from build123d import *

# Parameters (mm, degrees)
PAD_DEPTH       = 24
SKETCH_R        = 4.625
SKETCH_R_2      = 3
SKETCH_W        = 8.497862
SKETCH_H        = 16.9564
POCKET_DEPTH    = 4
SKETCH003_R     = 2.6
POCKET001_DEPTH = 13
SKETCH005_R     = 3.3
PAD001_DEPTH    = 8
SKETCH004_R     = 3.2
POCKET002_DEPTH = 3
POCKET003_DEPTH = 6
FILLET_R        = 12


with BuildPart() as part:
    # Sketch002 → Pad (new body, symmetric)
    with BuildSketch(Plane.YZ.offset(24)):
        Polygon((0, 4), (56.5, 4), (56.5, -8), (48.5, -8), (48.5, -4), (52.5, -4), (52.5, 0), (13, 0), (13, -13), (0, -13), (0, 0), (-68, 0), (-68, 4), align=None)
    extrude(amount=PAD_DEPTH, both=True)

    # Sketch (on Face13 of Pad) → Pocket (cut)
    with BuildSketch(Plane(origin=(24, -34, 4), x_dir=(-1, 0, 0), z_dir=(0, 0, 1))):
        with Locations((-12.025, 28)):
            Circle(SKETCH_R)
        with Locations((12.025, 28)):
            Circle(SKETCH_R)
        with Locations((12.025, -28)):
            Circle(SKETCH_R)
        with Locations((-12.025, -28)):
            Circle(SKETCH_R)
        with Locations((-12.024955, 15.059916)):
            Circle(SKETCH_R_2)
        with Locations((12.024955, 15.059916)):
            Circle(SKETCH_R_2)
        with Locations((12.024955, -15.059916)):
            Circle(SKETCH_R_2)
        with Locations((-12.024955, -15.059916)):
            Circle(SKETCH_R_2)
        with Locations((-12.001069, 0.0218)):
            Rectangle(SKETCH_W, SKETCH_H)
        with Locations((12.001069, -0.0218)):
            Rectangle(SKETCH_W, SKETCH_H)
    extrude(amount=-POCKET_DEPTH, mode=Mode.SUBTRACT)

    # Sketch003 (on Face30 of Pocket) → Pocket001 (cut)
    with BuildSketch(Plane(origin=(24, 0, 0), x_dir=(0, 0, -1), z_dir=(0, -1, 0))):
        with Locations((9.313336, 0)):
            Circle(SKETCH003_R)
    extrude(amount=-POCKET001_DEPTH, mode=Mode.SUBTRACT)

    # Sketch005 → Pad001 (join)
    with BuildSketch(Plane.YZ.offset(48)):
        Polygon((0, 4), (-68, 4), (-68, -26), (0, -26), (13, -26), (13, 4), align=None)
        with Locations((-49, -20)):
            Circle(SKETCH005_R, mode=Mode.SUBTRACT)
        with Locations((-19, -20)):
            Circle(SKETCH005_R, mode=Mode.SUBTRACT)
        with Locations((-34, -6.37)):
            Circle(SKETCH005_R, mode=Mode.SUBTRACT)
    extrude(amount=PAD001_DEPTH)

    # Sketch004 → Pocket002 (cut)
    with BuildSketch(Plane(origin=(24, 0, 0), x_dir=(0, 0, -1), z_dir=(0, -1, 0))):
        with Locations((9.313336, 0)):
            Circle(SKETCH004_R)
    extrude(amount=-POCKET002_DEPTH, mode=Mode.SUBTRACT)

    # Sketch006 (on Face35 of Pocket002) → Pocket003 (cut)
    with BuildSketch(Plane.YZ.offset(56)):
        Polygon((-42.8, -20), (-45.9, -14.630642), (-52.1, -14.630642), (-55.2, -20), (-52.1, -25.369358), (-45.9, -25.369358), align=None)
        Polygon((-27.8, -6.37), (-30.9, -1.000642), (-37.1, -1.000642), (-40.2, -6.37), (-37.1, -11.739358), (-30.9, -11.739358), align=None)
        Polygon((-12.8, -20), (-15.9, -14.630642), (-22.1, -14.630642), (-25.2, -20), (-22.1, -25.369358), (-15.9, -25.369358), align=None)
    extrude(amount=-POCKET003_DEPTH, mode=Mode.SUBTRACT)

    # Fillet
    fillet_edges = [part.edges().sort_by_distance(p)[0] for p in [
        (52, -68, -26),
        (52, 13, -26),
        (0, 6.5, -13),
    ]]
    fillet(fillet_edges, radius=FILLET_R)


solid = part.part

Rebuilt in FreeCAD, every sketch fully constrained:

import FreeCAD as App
import Part
import Sketcher
from FreeCAD import Vector
Q = App.Units.Quantity


def edges_at(feature, points):
    """Names of the edges that pass closest to the given points."""
    edges = feature.Shape.Edges
    near = lambda p: min(range(len(edges)), key=lambda i: edges[i].distToShape(Part.Vertex(*p))[0])
    return sorted({f"Edge{near(p) + 1}" for p in points})

doc = App.newDocument("Part")
body = doc.addObject("PartDesign::Body", "Body")

# Sketch on YZ plane
sketch1 = body.newObject("Sketcher::SketchObject", "Sketch")
sketch1.AttachmentSupport = (doc.getObject("YZ_Plane"), [""])
sketch1.MapMode = "FlatFace"
sketch1.AttachmentOffset = App.Placement(Vector(0, 0, 24), App.Rotation())
sketch1.addGeometry(Part.LineSegment(Vector(56.5, 4, 0), Vector(-68, 4, 0)), False)
sketch1.addGeometry(Part.LineSegment(Vector(-68, 4, 0), Vector(-68, 0, 0)), False)
sketch1.addGeometry(Part.LineSegment(Vector(-68, 0, 0), Vector(0, 0, 0)), False)
sketch1.addGeometry(Part.LineSegment(Vector(0, 0, 0), Vector(0, -13, 0)), False)
sketch1.addGeometry(Part.LineSegment(Vector(0, -13, 0), Vector(13, -13, 0)), False)
sketch1.addGeometry(Part.LineSegment(Vector(13, -13, 0), Vector(13, 0, 0)), False)
sketch1.addGeometry(Part.LineSegment(Vector(13, 0, 0), Vector(52.5, 0, 0)), False)
sketch1.addGeometry(Part.LineSegment(Vector(52.5, 0, 0), Vector(52.5, -4, 0)), False)
sketch1.addGeometry(Part.LineSegment(Vector(52.5, -4, 0), Vector(48.5, -4, 0)), False)
sketch1.addGeometry(Part.LineSegment(Vector(48.5, -4, 0), Vector(48.5, -8, 0)), False)
sketch1.addGeometry(Part.LineSegment(Vector(48.5, -8, 0), Vector(56.5, -8, 0)), False)
sketch1.addGeometry(Part.LineSegment(Vector(56.5, -8, 0), Vector(56.5, 4, 0)), False)
sketch1.addConstraint(Sketcher.Constraint("Coincident", 0, 2, 1, 1))
sketch1.addConstraint(Sketcher.Constraint("Coincident", 1, 2, 2, 1))
sketch1.addConstraint(Sketcher.Constraint("Coincident", 2, 2, 3, 1))
sketch1.addConstraint(Sketcher.Constraint("Coincident", 3, 2, 4, 1))
sketch1.addConstraint(Sketcher.Constraint("Coincident", 4, 2, 5, 1))
sketch1.addConstraint(Sketcher.Constraint("Coincident", 5, 2, 6, 1))
sketch1.addConstraint(Sketcher.Constraint("Coincident", 6, 2, 7, 1))
sketch1.addConstraint(Sketcher.Constraint("Coincident", 7, 2, 8, 1))
sketch1.addConstraint(Sketcher.Constraint("Coincident", 8, 2, 9, 1))
sketch1.addConstraint(Sketcher.Constraint("Coincident", 9, 2, 10, 1))
sketch1.addConstraint(Sketcher.Constraint("Coincident", 10, 2, 11, 1))
sketch1.addConstraint(Sketcher.Constraint("Coincident", 11, 2, 0, 1))
sketch1.addConstraint(Sketcher.Constraint("Horizontal", 0))
sketch1.addConstraint(Sketcher.Constraint("Vertical", 1))
sketch1.addConstraint(Sketcher.Constraint("Horizontal", 2))
sketch1.addConstraint(Sketcher.Constraint("Vertical", 3))
sketch1.addConstraint(Sketcher.Constraint("Horizontal", 4))
sketch1.addConstraint(Sketcher.Constraint("Vertical", 5))
sketch1.addConstraint(Sketcher.Constraint("Horizontal", 6))
sketch1.addConstraint(Sketcher.Constraint("Vertical", 7))
sketch1.addConstraint(Sketcher.Constraint("Horizontal", 8))
sketch1.addConstraint(Sketcher.Constraint("Vertical", 9))
sketch1.addConstraint(Sketcher.Constraint("Horizontal", 10))
sketch1.addConstraint(Sketcher.Constraint("Vertical", 11))
sketch1.addConstraint(Sketcher.Constraint("Coincident", 2, 2, -1, 1))
sketch1.addConstraint(Sketcher.Constraint("PointOnObject", 5, 2, -1))
sketch1.addConstraint(Sketcher.Constraint("Equal", 8, 1))
sketch1.addConstraint(Sketcher.Constraint("Equal", 4, 3))
sketch1.addConstraint(Sketcher.Constraint("Equal", 1, 7))
sketch1.addConstraint(Sketcher.Constraint("Equal", 7, 9))
sketch1.addConstraint(Sketcher.Constraint("DistanceX", 2, 1, 2, 2, Q("68 mm")))
sketch1.addConstraint(Sketcher.Constraint("DistanceX", 4, 1, 4, 2, Q("13 mm")))
sketch1.addConstraint(Sketcher.Constraint("DistanceX", 8, 2, 8, 1, Q("4 mm")))
sketch1.addConstraint(Sketcher.Constraint("DistanceX", 10, 1, 10, 2, Q("8 mm")))
sketch1.addConstraint(Sketcher.Constraint("DistanceX", 0, 2, 0, 1, Q("124.5 mm")))
pad1 = body.newObject("PartDesign::Pad", "Pad")
pad1.Profile = sketch1
pad1.Length = 48
pad1.Midplane = True

# Sketch on XY plane
sketch2 = body.newObject("Sketcher::SketchObject", "Sketch001")
sketch2.AttachmentSupport = (doc.getObject("XY_Plane"), [""])
sketch2.MapMode = "FlatFace"
sketch2.AttachmentOffset = App.Placement(Vector(0, 0, 4), App.Rotation())
sketch2.addGeometry(Part.Circle(Vector(36, -62, 0), Vector(0, 0, 1), 4.6), False)
sketch2.addGeometry(Part.Circle(Vector(12, -62, 0), Vector(0, 0, 1), 4.6), False)
sketch2.addGeometry(Part.Circle(Vector(12, -6, 0), Vector(0, 0, 1), 4.6), False)
sketch2.addGeometry(Part.Circle(Vector(36, -6, 0), Vector(0, 0, 1), 4.6), False)
sketch2.addGeometry(Part.Circle(Vector(36, -49.1, 0), Vector(0, 0, 1), 3), False)
sketch2.addGeometry(Part.Circle(Vector(12, -49.1, 0), Vector(0, 0, 1), 3), False)
sketch2.addGeometry(Part.Circle(Vector(12, -18.9, 0), Vector(0, 0, 1), 3), False)
sketch2.addGeometry(Part.Circle(Vector(36, -18.9, 0), Vector(0, 0, 1), 3), False)
sketch2.addGeometry(Part.LineSegment(Vector(40.2, -42.5, 0), Vector(40.2, -25.5, 0)), False)
sketch2.addGeometry(Part.LineSegment(Vector(40.2, -25.5, 0), Vector(31.8, -25.5, 0)), False)
sketch2.addGeometry(Part.LineSegment(Vector(31.8, -25.5, 0), Vector(31.8, -42.5, 0)), False)
sketch2.addGeometry(Part.LineSegment(Vector(31.8, -42.5, 0), Vector(40.2, -42.5, 0)), False)
sketch2.addGeometry(Part.LineSegment(Vector(16.2, -42.5, 0), Vector(16.2, -25.5, 0)), False)
sketch2.addGeometry(Part.LineSegment(Vector(16.2, -25.5, 0), Vector(7.8, -25.5, 0)), False)
sketch2.addGeometry(Part.LineSegment(Vector(7.8, -25.5, 0), Vector(7.8, -42.5, 0)), False)
sketch2.addGeometry(Part.LineSegment(Vector(7.8, -42.5, 0), Vector(16.2, -42.5, 0)), False)
sketch2.addConstraint(Sketcher.Constraint("Coincident", 8, 2, 9, 1))
sketch2.addConstraint(Sketcher.Constraint("Coincident", 9, 2, 10, 1))
sketch2.addConstraint(Sketcher.Constraint("Coincident", 10, 2, 11, 1))
sketch2.addConstraint(Sketcher.Constraint("Coincident", 11, 2, 8, 1))
sketch2.addConstraint(Sketcher.Constraint("Coincident", 12, 2, 13, 1))
sketch2.addConstraint(Sketcher.Constraint("Coincident", 13, 2, 14, 1))
sketch2.addConstraint(Sketcher.Constraint("Coincident", 14, 2, 15, 1))
sketch2.addConstraint(Sketcher.Constraint("Coincident", 15, 2, 12, 1))
sketch2.addConstraint(Sketcher.Constraint("Vertical", 8))
sketch2.addConstraint(Sketcher.Constraint("Horizontal", 9))
sketch2.addConstraint(Sketcher.Constraint("Vertical", 10))
sketch2.addConstraint(Sketcher.Constraint("Horizontal", 11))
sketch2.addConstraint(Sketcher.Constraint("Vertical", 12))
sketch2.addConstraint(Sketcher.Constraint("Horizontal", 13))
sketch2.addConstraint(Sketcher.Constraint("Vertical", 14))
sketch2.addConstraint(Sketcher.Constraint("Horizontal", 15))
sketch2.addConstraint(Sketcher.Constraint("Equal", 0, 1))
sketch2.addConstraint(Sketcher.Constraint("Equal", 1, 2))
sketch2.addConstraint(Sketcher.Constraint("Equal", 2, 3))
sketch2.addConstraint(Sketcher.Constraint("Equal", 4, 5))
sketch2.addConstraint(Sketcher.Constraint("Equal", 5, 6))
sketch2.addConstraint(Sketcher.Constraint("Equal", 6, 7))
sketch2.addConstraint(Sketcher.Constraint("Horizontal", 0, 3, 1, 3))
sketch2.addConstraint(Sketcher.Constraint("Horizontal", 2, 3, 3, 3))
sketch2.addConstraint(Sketcher.Constraint("Horizontal", 4, 3, 5, 3))
sketch2.addConstraint(Sketcher.Constraint("Horizontal", 6, 3, 7, 3))
sketch2.addConstraint(Sketcher.Constraint("Vertical", 1, 3, 2, 3))
sketch2.addConstraint(Sketcher.Constraint("Vertical", 0, 3, 3, 3))
sketch2.addConstraint(Sketcher.Constraint("Vertical", 5, 3, 6, 3))
sketch2.addConstraint(Sketcher.Constraint("Vertical", 4, 3, 7, 3))
sketch2.addConstraint(Sketcher.Constraint("Equal", 11, 13))
sketch2.addConstraint(Sketcher.Constraint("Equal", 10, 12))
sketch2.addConstraint(Sketcher.Constraint("Diameter", 4, Q("6 mm")))
sketch2.addConstraint(Sketcher.Constraint("Diameter", 0, Q("9.25 mm")))
sketch2.addConstraint(Sketcher.Constraint("DistanceY", 0, 3, -1, 1, Q("62 mm")))
sketch2.addConstraint(Sketcher.Constraint("DistanceY", 2, 3, -1, 1, Q("6 mm")))
sketch2.addConstraint(Sketcher.Constraint("DistanceY", 10, 2, 12, 2, Q("17 mm")))
sketch2.addConstraint(Sketcher.Constraint("DistanceY", 10, 2, -1, 1, Q("42.5 mm")))
sketch2.addConstraint(Sketcher.Constraint("DistanceX", -1, 1, 8, 2, Q("40.25 mm")))
sketch2.addConstraint(Sketcher.Constraint("DistanceX", -1, 1, 13, 2, Q("7.75 mm")))
sketch2.addConstraint(Sketcher.Constraint("DistanceX", 1, 3, 0, 3, Q("24.05 mm")))
sketch2.addConstraint(Sketcher.Constraint("DistanceY", 8, 1, 8, 2, Q("16.9564 mm")))
sketch2.addConstraint(Sketcher.Constraint("DistanceX", -1, 1, 0, 3, Q("36.025 mm")))
sketch2.addConstraint(Sketcher.Constraint("DistanceX", 9, 2, 9, 1, Q("8.497862 mm")))
sketch2.addConstraint(Sketcher.Constraint("DistanceX", 5, 3, 4, 3, Q("24.04991 mm")))
sketch2.addConstraint(Sketcher.Constraint("DistanceX", -1, 1, 4, 3, Q("36.024955 mm")))
sketch2.addConstraint(Sketcher.Constraint("DistanceY", 4, 3, -1, 1, Q("49.059916 mm")))
sketch2.addConstraint(Sketcher.Constraint("DistanceY", 6, 3, -1, 1, Q("18.940084 mm")))
pocket1 = body.newObject("PartDesign::Pocket", "Pocket")
pocket1.Profile = sketch2
pocket1.Length = 4

# Sketch on XZ plane
sketch3 = body.newObject("Sketcher::SketchObject", "Sketch002")
sketch3.AttachmentSupport = (doc.getObject("XZ_Plane"), [""])
sketch3.MapMode = "FlatFace"
sketch3.addGeometry(Part.Circle(Vector(24, -9.3, 0), Vector(0, 0, 1), 2.6), False)
sketch3.addConstraint(Sketcher.Constraint("Diameter", 0, Q("5.2 mm")))
sketch3.addConstraint(Sketcher.Constraint("DistanceX", -1, 1, 0, 3, Q("24 mm")))
sketch3.addConstraint(Sketcher.Constraint("DistanceY", 0, 3, -1, 1, Q("9.313336 mm")))
pocket2 = body.newObject("PartDesign::Pocket", "Pocket001")
pocket2.Profile = sketch3
pocket2.Length = 13

# Sketch on YZ plane
sketch4 = body.newObject("Sketcher::SketchObject", "Sketch003")
sketch4.AttachmentSupport = (doc.getObject("YZ_Plane"), [""])
sketch4.MapMode = "FlatFace"
sketch4.AttachmentOffset = App.Placement(Vector(0, 0, 48), App.Rotation())
sketch4.addGeometry(Part.LineSegment(Vector(-68, 4, 0), Vector(-68, -26, 0)), False)
sketch4.addGeometry(Part.LineSegment(Vector(-68, -26, 0), Vector(13, -26, 0)), False)
sketch4.addGeometry(Part.LineSegment(Vector(13, -26, 0), Vector(13, 4, 0)), False)
sketch4.addGeometry(Part.LineSegment(Vector(13, 4, 0), Vector(-68, 4, 0)), False)
sketch4.addGeometry(Part.Circle(Vector(-49, -20, 0), Vector(0, 0, 1), 3.3), False)
sketch4.addGeometry(Part.Circle(Vector(-19, -20, 0), Vector(0, 0, 1), 3.3), False)
sketch4.addGeometry(Part.Circle(Vector(-34, -6.4, 0), Vector(0, 0, 1), 3.3), False)
sketch4.addConstraint(Sketcher.Constraint("Coincident", 0, 2, 1, 1))
sketch4.addConstraint(Sketcher.Constraint("Coincident", 1, 2, 2, 1))
sketch4.addConstraint(Sketcher.Constraint("Coincident", 2, 2, 3, 1))
sketch4.addConstraint(Sketcher.Constraint("Coincident", 3, 2, 0, 1))
sketch4.addConstraint(Sketcher.Constraint("Vertical", 0))
sketch4.addConstraint(Sketcher.Constraint("Horizontal", 1))
sketch4.addConstraint(Sketcher.Constraint("Vertical", 2))
sketch4.addConstraint(Sketcher.Constraint("Horizontal", 3))
sketch4.addConstraint(Sketcher.Constraint("Equal", 4, 5))
sketch4.addConstraint(Sketcher.Constraint("Equal", 5, 6))
sketch4.addConstraint(Sketcher.Constraint("Horizontal", 4, 3, 5, 3))
sketch4.addConstraint(Sketcher.Constraint("Diameter", 4, Q("6.6 mm")))
sketch4.addConstraint(Sketcher.Constraint("DistanceX", 1, 1, 1, 2, Q("81 mm")))
sketch4.addConstraint(Sketcher.Constraint("DistanceY", 0, 2, 0, 1, Q("30 mm")))
sketch4.addConstraint(Sketcher.Constraint("DistanceX", 4, 3, -1, 1, Q("49 mm")))
sketch4.addConstraint(Sketcher.Constraint("DistanceY", 4, 3, -1, 1, Q("20 mm")))
sketch4.addConstraint(Sketcher.Constraint("DistanceX", 5, 3, -1, 1, Q("19 mm")))
sketch4.addConstraint(Sketcher.Constraint("DistanceX", 6, 3, -1, 1, Q("34 mm")))
sketch4.addConstraint(Sketcher.Constraint("DistanceX", 0, 2, -1, 1, Q("68 mm")))
sketch4.addConstraint(Sketcher.Constraint("DistanceY", 0, 2, -1, 1, Q("26 mm")))
sketch4.addConstraint(Sketcher.Constraint("DistanceY", 6, 3, -1, 1, Q("6.37 mm")))
pad2 = body.newObject("PartDesign::Pad", "Pad001")
pad2.Profile = sketch4
pad2.Length = 8

# Sketch on XZ plane
sketch5 = body.newObject("Sketcher::SketchObject", "Sketch004")
sketch5.AttachmentSupport = (doc.getObject("XZ_Plane"), [""])
sketch5.MapMode = "FlatFace"
sketch5.addGeometry(Part.Circle(Vector(24, -9.3, 0), Vector(0, 0, 1), 3.2), False)
sketch5.addConstraint(Sketcher.Constraint("Diameter", 0, Q("6.4 mm")))
sketch5.addConstraint(Sketcher.Constraint("DistanceX", -1, 1, 0, 3, Q("24 mm")))
sketch5.addConstraint(Sketcher.Constraint("DistanceY", 0, 3, -1, 1, Q("9.313336 mm")))
pocket3 = body.newObject("PartDesign::Pocket", "Pocket002")
pocket3.Profile = sketch5
pocket3.Length = 3

# Sketch on YZ plane
sketch6 = body.newObject("Sketcher::SketchObject", "Sketch005")
sketch6.AttachmentSupport = (doc.getObject("YZ_Plane"), [""])
sketch6.MapMode = "FlatFace"
sketch6.AttachmentOffset = App.Placement(Vector(0, 0, 56), App.Rotation())
sketch6.addGeometry(Part.LineSegment(Vector(-43, -20, 0), Vector(-46, -15, 0)), False)
sketch6.addGeometry(Part.LineSegment(Vector(-46, -15, 0), Vector(-52, -15, 0)), False)
sketch6.addGeometry(Part.LineSegment(Vector(-52, -15, 0), Vector(-55, -20, 0)), False)
sketch6.addGeometry(Part.LineSegment(Vector(-55, -20, 0), Vector(-52, -25, 0)), False)
sketch6.addGeometry(Part.LineSegment(Vector(-52, -25, 0), Vector(-46, -25, 0)), False)
sketch6.addGeometry(Part.LineSegment(Vector(-46, -25, 0), Vector(-43, -20, 0)), False)
sketch6.addGeometry(Part.LineSegment(Vector(-28, -6, 0), Vector(-31, -1, 0)), False)
sketch6.addGeometry(Part.LineSegment(Vector(-31, -1, 0), Vector(-37, -1, 0)), False)
sketch6.addGeometry(Part.LineSegment(Vector(-37, -1, 0), Vector(-40, -6, 0)), False)
sketch6.addGeometry(Part.LineSegment(Vector(-40, -6, 0), Vector(-37, -12, 0)), False)
sketch6.addGeometry(Part.LineSegment(Vector(-37, -12, 0), Vector(-31, -12, 0)), False)
sketch6.addGeometry(Part.LineSegment(Vector(-31, -12, 0), Vector(-28, -6, 0)), False)
sketch6.addGeometry(Part.LineSegment(Vector(-13, -20, 0), Vector(-16, -15, 0)), False)
sketch6.addGeometry(Part.LineSegment(Vector(-16, -15, 0), Vector(-22, -15, 0)), False)
sketch6.addGeometry(Part.LineSegment(Vector(-22, -15, 0), Vector(-25, -20, 0)), False)
sketch6.addGeometry(Part.LineSegment(Vector(-25, -20, 0), Vector(-22, -25, 0)), False)
sketch6.addGeometry(Part.LineSegment(Vector(-22, -25, 0), Vector(-16, -25, 0)), False)
sketch6.addGeometry(Part.LineSegment(Vector(-16, -25, 0), Vector(-13, -20, 0)), False)
sketch6.addConstraint(Sketcher.Constraint("Coincident", 0, 2, 1, 1))
sketch6.addConstraint(Sketcher.Constraint("Coincident", 1, 2, 2, 1))
sketch6.addConstraint(Sketcher.Constraint("Coincident", 2, 2, 3, 1))
sketch6.addConstraint(Sketcher.Constraint("Coincident", 3, 2, 4, 1))
sketch6.addConstraint(Sketcher.Constraint("Coincident", 4, 2, 5, 1))
sketch6.addConstraint(Sketcher.Constraint("Coincident", 5, 2, 0, 1))
sketch6.addConstraint(Sketcher.Constraint("Coincident", 6, 2, 7, 1))
sketch6.addConstraint(Sketcher.Constraint("Coincident", 7, 2, 8, 1))
sketch6.addConstraint(Sketcher.Constraint("Coincident", 8, 2, 9, 1))
sketch6.addConstraint(Sketcher.Constraint("Coincident", 9, 2, 10, 1))
sketch6.addConstraint(Sketcher.Constraint("Coincident", 10, 2, 11, 1))
sketch6.addConstraint(Sketcher.Constraint("Coincident", 11, 2, 6, 1))
sketch6.addConstraint(Sketcher.Constraint("Coincident", 12, 2, 13, 1))
sketch6.addConstraint(Sketcher.Constraint("Coincident", 13, 2, 14, 1))
sketch6.addConstraint(Sketcher.Constraint("Coincident", 14, 2, 15, 1))
sketch6.addConstraint(Sketcher.Constraint("Coincident", 15, 2, 16, 1))
sketch6.addConstraint(Sketcher.Constraint("Coincident", 16, 2, 17, 1))
sketch6.addConstraint(Sketcher.Constraint("Coincident", 17, 2, 12, 1))
sketch6.addConstraint(Sketcher.Constraint("Horizontal", 1))
sketch6.addConstraint(Sketcher.Constraint("Horizontal", 4))
sketch6.addConstraint(Sketcher.Constraint("Horizontal", 7))
sketch6.addConstraint(Sketcher.Constraint("Horizontal", 10))
sketch6.addConstraint(Sketcher.Constraint("Horizontal", 13))
sketch6.addConstraint(Sketcher.Constraint("Horizontal", 16))
sketch6.addConstraint(Sketcher.Constraint("Parallel", 0, 3))
sketch6.addConstraint(Sketcher.Constraint("Parallel", 2, 5))
sketch6.addConstraint(Sketcher.Constraint("Parallel", 3, 6))
sketch6.addConstraint(Sketcher.Constraint("Parallel", 5, 8))
sketch6.addConstraint(Sketcher.Constraint("Parallel", 6, 9))
sketch6.addConstraint(Sketcher.Constraint("Parallel", 8, 11))
sketch6.addConstraint(Sketcher.Constraint("Parallel", 9, 12))
sketch6.addConstraint(Sketcher.Constraint("Parallel", 11, 14))
sketch6.addConstraint(Sketcher.Constraint("Parallel", 12, 15))
sketch6.addConstraint(Sketcher.Constraint("Parallel", 14, 17))
sketch6.addConstraint(Sketcher.Constraint("Horizontal", 2, 2, 5, 2))
sketch6.addConstraint(Sketcher.Constraint("Horizontal", 8, 2, 11, 2))
sketch6.addConstraint(Sketcher.Constraint("Horizontal", 1, 2, 12, 2))
sketch6.addConstraint(Sketcher.Constraint("Horizontal", 5, 2, 14, 2))
sketch6.addConstraint(Sketcher.Constraint("Horizontal", 4, 2, 15, 2))
sketch6.addConstraint(Sketcher.Constraint("Horizontal", 14, 2, 17, 2))
sketch6.addConstraint(Sketcher.Constraint("Vertical", 1, 2, 3, 2))
sketch6.addConstraint(Sketcher.Constraint("Vertical", 0, 2, 4, 2))
sketch6.addConstraint(Sketcher.Constraint("Vertical", 7, 2, 9, 2))
sketch6.addConstraint(Sketcher.Constraint("Equal", 4, 7))
sketch6.addConstraint(Sketcher.Constraint("Equal", 10, 13))
sketch6.addConstraint(Sketcher.Constraint("Equal", 5, 6))
sketch6.addConstraint(Sketcher.Constraint("Angle", 0, Q("119.999998 deg")))
sketch6.addConstraint(Sketcher.Constraint("DistanceX", 1, 2, 1, 1, Q("6.2 mm")))
sketch6.addConstraint(Sketcher.Constraint("DistanceY", 2, 2, -1, 1, Q("20 mm")))
sketch6.addConstraint(Sketcher.Constraint("DistanceX", 0, 2, 6, 2, Q("15 mm")))
sketch6.addConstraint(Sketcher.Constraint("DistanceX", 10, 2, 12, 2, Q("15 mm")))
sketch6.addConstraint(Sketcher.Constraint("Distance", 0, Q("6.2 mm")))
sketch6.addConstraint(Sketcher.Constraint("DistanceX", 0, 2, -1, 1, Q("45.9 mm")))
sketch6.addConstraint(Sketcher.Constraint("DistanceY", 8, 2, -1, 1, Q("6.37 mm")))
pocket4 = body.newObject("PartDesign::Pocket", "Pocket003")
pocket4.Profile = sketch6
pocket4.Length = 6
doc.recompute()

fillet = body.newObject("PartDesign::Fillet", "Fillet")
fillet.Base = (pocket4, edges_at(pocket4, [(52, -68, -26), (52, 13, -26), (0, 6.5, -13)]))
fillet.Radius = 12

doc.recompute()
